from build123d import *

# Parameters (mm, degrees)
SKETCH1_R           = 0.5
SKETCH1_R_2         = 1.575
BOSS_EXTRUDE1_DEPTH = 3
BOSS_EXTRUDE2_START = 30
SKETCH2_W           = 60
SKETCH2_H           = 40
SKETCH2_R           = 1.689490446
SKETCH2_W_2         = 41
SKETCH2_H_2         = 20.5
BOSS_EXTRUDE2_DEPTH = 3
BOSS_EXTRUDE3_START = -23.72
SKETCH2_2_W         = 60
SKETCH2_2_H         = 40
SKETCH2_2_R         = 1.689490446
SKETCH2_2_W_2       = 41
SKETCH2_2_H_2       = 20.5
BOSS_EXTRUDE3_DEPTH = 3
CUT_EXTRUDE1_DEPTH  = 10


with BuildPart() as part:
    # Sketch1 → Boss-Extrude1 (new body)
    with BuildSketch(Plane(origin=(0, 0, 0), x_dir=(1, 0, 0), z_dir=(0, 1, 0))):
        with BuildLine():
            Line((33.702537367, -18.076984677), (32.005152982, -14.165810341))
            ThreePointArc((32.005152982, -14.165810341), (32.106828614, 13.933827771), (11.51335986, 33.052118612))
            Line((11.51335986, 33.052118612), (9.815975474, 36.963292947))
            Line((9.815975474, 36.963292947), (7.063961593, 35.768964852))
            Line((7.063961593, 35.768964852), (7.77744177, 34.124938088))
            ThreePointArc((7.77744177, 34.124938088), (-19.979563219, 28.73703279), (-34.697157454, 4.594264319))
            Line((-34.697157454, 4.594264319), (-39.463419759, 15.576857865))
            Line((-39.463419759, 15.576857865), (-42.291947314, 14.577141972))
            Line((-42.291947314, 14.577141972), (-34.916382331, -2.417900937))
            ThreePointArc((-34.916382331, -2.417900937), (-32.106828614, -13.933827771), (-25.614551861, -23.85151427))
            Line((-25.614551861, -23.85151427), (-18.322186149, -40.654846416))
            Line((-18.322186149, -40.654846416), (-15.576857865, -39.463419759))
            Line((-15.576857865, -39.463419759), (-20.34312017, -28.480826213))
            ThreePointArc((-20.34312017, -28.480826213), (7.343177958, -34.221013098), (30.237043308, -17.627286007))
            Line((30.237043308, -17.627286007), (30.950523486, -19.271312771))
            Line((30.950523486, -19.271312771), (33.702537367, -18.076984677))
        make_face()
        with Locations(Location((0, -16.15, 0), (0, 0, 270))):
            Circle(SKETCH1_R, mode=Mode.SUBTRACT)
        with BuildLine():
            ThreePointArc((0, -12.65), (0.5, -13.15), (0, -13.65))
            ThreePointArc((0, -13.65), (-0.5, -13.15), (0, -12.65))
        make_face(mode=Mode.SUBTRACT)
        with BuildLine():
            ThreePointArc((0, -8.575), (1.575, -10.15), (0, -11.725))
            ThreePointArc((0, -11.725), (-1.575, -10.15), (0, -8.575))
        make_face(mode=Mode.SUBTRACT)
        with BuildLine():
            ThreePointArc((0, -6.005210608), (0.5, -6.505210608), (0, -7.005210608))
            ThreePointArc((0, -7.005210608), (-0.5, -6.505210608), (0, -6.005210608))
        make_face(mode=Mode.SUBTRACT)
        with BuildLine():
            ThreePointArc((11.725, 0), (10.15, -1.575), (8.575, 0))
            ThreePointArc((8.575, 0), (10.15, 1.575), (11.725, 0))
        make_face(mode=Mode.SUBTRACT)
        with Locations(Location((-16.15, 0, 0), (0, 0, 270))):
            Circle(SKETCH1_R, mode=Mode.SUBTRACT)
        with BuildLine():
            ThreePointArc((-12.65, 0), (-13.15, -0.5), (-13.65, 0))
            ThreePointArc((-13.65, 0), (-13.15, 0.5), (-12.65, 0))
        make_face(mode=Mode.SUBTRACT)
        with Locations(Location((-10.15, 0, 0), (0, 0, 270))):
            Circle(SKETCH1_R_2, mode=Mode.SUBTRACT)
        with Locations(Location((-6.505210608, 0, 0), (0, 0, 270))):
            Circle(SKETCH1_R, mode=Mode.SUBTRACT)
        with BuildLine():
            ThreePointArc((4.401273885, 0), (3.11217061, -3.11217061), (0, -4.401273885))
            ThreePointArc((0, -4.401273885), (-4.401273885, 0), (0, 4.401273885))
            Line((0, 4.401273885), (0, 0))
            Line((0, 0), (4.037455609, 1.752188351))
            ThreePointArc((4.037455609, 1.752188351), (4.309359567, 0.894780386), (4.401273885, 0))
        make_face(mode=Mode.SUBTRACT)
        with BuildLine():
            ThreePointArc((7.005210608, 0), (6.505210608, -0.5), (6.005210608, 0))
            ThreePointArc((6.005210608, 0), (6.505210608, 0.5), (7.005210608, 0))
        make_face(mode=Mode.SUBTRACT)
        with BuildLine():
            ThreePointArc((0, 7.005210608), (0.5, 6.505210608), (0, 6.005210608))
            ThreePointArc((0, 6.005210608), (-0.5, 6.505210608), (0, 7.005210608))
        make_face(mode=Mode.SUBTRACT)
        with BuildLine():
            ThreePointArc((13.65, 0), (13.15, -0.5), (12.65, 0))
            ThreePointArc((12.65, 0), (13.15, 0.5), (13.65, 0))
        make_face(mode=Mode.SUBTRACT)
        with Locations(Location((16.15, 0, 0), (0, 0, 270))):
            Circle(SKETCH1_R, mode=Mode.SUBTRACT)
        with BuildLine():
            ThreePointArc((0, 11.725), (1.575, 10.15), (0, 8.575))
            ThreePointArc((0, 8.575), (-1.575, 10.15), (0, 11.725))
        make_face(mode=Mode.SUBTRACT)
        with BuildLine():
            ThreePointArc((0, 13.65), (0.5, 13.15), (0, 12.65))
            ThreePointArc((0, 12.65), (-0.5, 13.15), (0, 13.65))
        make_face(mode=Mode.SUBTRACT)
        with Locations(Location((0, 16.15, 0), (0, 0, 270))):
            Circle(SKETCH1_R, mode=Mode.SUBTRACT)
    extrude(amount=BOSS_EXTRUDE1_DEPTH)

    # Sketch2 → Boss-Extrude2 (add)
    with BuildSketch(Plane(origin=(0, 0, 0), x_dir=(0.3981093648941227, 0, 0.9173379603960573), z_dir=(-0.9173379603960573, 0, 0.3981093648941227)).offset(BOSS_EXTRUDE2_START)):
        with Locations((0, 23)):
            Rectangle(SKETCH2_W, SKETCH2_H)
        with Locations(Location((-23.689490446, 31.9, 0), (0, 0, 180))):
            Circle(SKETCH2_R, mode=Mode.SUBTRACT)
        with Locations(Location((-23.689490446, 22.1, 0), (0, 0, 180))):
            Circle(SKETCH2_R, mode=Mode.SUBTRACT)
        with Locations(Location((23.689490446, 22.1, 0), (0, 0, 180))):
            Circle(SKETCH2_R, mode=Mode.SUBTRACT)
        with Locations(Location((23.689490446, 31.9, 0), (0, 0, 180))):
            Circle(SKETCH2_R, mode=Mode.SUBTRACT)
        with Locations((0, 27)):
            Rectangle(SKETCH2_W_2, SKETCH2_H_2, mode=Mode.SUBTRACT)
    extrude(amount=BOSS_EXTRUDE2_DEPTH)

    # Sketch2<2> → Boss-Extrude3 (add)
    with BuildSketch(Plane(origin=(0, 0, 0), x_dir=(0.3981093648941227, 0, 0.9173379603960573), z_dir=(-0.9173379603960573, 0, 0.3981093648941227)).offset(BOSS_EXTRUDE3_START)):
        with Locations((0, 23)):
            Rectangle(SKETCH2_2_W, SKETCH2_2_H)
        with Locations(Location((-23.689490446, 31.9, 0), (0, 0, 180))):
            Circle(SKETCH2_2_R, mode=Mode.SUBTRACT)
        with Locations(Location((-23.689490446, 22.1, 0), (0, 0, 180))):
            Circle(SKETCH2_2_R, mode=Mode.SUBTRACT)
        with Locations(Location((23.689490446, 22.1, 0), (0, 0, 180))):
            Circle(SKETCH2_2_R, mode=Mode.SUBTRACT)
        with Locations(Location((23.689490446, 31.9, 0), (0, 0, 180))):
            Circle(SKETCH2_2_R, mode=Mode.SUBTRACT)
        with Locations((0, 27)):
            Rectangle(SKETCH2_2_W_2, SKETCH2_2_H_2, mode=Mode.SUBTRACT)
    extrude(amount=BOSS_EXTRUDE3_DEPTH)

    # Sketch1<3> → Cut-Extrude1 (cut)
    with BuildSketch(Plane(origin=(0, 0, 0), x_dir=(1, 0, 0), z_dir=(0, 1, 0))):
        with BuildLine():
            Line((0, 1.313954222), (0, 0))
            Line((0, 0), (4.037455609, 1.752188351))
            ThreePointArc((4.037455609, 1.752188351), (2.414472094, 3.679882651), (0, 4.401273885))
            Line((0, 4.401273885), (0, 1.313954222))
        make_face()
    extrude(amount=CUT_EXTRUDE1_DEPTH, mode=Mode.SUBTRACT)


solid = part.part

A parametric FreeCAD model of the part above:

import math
import FreeCAD as App
import Part
import Sketcher

V = App.Vector
Q = App.Units.Quantity


def add_polygon(sketch, points):
    """Adds a closed chain of lines whose ends are joined by coincident constraints."""
    first, n = sketch.GeometryCount, len(points)
    for a, b in zip(points, points[1:] + points[:1]):
        sketch.addGeometry(Part.LineSegment(App.Vector(*a, 0), App.Vector(*b, 0)), False)
    for i in range(n):
        sketch.addConstraint(Sketcher.Constraint("Coincident", first + i, 2, first + (i + 1) % n, 1))

doc = App.newDocument("Part")
body = doc.addObject("PartDesign::Body", "Body")

# Sketch on XZ plane
sketch1 = body.newObject("Sketcher::SketchObject", "Sketch")
sketch1.AttachmentSupport = (doc.getObject("XZ_Plane"), [""])
sketch1.MapMode = "FlatFace"
sketch1.addGeometry([
    Part.LineSegment(V(33.702537, 18.076985, 0), V(32.005153, 14.16581, 0)),  # 0
    Part.ArcOfCircle(Part.Circle(V(0, 0, 0), V(0, 0, 1), 35), math.radians(-70.794752), math.radians(23.874675)),  # 1
    Part.LineSegment(V(11.51336, -33.052119, 0), V(9.815975, -36.963293, 0)),  # 2
    Part.LineSegment(V(9.815975, -36.963293, 0), V(7.063962, -35.768965, 0)),  # 3
    Part.LineSegment(V(7.063962, -35.768965, 0), V(7.777442, -34.124938, 0)),  # 4
    Part.ArcOfCircle(Part.Circle(V(0, 0, 0), V(0, 0, 1), 35), math.radians(-172.45732), math.radians(-77.160976)),  # 5
    Part.LineSegment(V(-34.697157, -4.594264, 0), V(-39.46342, -15.576858, 0)),  # 6
    Part.LineSegment(V(-39.46342, -15.576858, 0), V(-42.291947, -14.577142, 0)),  # 7
    Part.LineSegment(V(-42.291947, -14.577142, 0), V(-34.916382, 2.417901, 0)),  # 8
    Part.ArcOfCircle(Part.Circle(V(0, 0, 0), V(0, 0, 1), 35), math.radians(137.041235), math.radians(176.038687)),  # 9
    Part.LineSegment(V(-25.614552, 23.851514, 0), V(-18.322186, 40.654846, 0)),  # 10
    Part.LineSegment(V(-18.322186, 40.654846, 0), V(-15.576858, 39.46342, 0)),  # 11
    Part.LineSegment(V(-15.576858, 39.46342, 0), V(-20.34312, 28.480826, 0)),  # 12
    Part.ArcOfCircle(Part.Circle(V(0, 0, 0), V(0, 0, 1), 35), math.radians(30.240898), math.radians(125.537242)),  # 13
    Part.LineSegment(V(30.237043, 17.627286, 0), V(30.950523, 19.271313, 0)),  # 14
    Part.LineSegment(V(30.950523, 19.271313, 0), V(33.702537, 18.076985, 0)),  # 15
    Part.Circle(V(0, 16.15, 0), V(0, 0, 1), 0.5),  # 16
    Part.Circle(V(0, 13.15, 0), V(0, 0, 1), 0.5),  # 17
    Part.Circle(V(0, 10.15, 0), V(0, 0, 1), 1.575),  # 18
    Part.Circle(V(0, 6.505211, 0), V(0, 0, 1), 0.5),  # 19
    Part.Circle(V(-16.15, 0, 0), V(0, 0, 1), 0.5),  # 20
    Part.Circle(V(-13.15, 0, 0), V(0, 0, 1), 0.5),  # 21
    Part.Circle(V(-10.15, 0, 0), V(0, 0, 1), 1.575),  # 22
    Part.Circle(V(-6.505211, 0, 0), V(0, 0, 1), 0.5),  # 23
    Part.ArcOfCircle(Part.Circle(V(0, 0, 0), V(0, 0, 1), 4.401274), math.radians(-23.460039), math.radians(0)),  # 24
    Part.ArcOfCircle(Part.Circle(V(0, 0, 0), V(0, 0, 1), 4.401274), math.radians(0), math.radians(90)),  # 25
    Part.ArcOfCircle(Part.Circle(V(0, 0, 0), V(0, 0, 1), 4.401274), math.radians(90), math.radians(270)),  # 26
    Part.LineSegment(V(0, -4.401274, 0), V(0, 0, 0)),  # 27
    Part.LineSegment(V(0, 0, 0), V(4.037456, -1.752188, 0)),  # 28
    Part.Circle(V(6.505211, 0, 0), V(0, 0, 1), 0.5),  # 29
    Part.Circle(V(0, -6.505211, 0), V(0, 0, 1), 0.5),  # 30
    Part.Circle(V(10.15, 0, 0), V(0, 0, 1), 1.575),  # 31
    Part.Circle(V(13.15, 0, 0), V(0, 0, 1), 0.5),  # 32
    Part.Circle(V(16.15, 0, 0), V(0, 0, 1), 0.5),  # 33
    Part.Circle(V(0, -10.15, 0), V(0, 0, 1), 1.575),  # 34
    Part.Circle(V(0, -13.15, 0), V(0, 0, 1), 0.5),  # 35
    Part.Circle(V(0, -16.15, 0), V(0, 0, 1), 0.5),  # 36
], False)
sketch1.addConstraint([
    Sketcher.Constraint("Coincident", 0, 2, 1, 2),
    Sketcher.Constraint("Coincident", 1, 1, 2, 1),
    Sketcher.Constraint("Coincident", 2, 2, 3, 1),
    Sketcher.Constraint("Coincident", 3, 2, 4, 1),
    Sketcher.Constraint("Coincident", 4, 2, 5, 2),
    Sketcher.Constraint("Coincident", 5, 1, 6, 1),
    Sketcher.Constraint("Coincident", 6, 2, 7, 1),
    Sketcher.Constraint("Coincident", 7, 2, 8, 1),
    Sketcher.Constraint("Coincident", 8, 2, 9, 2),
    Sketcher.Constraint("Coincident", 9, 1, 10, 1),
    Sketcher.Constraint("Coincident", 10, 2, 11, 1),
    Sketcher.Constraint("Coincident", 11, 2, 12, 1),
    Sketcher.Constraint("Coincident", 12, 2, 13, 2),
    Sketcher.Constraint("Coincident", 13, 1, 14, 1),
    Sketcher.Constraint("Coincident", 14, 2, 15, 1),
    Sketcher.Constraint("Coincident", 15, 2, 0, 1),
    Sketcher.Constraint("Tangent", 24, 2, 25, 1),
    Sketcher.Constraint("Tangent", 25, 2, 26, 1),
    Sketcher.Constraint("Coincident", 26, 2, 27, 1),
    Sketcher.Constraint("Coincident", 27, 2, 28, 1),
    Sketcher.Constraint("Coincident", 28, 2, 24, 1),
    Sketcher.Constraint("Vertical", 27),
    Sketcher.Constraint("Coincident", 1, 3, -1, 1),
    Sketcher.Constraint("Coincident", 5, 3, -1, 1),
    Sketcher.Constraint("Coincident", 9, 3, -1, 1),
    Sketcher.Constraint("Coincident", 13, 3, -1, 1),
    Sketcher.Constraint("Coincident", 24, 3, -1, 1),
    Sketcher.Constraint("Coincident", 26, 3, -1, 1),
    Sketcher.Constraint("Coincident", 27, 2, -1, 1),
    Sketcher.Constraint("Equal", 1, 5),
    Sketcher.Constraint("Equal", 5, 9),
    Sketcher.Constraint("Equal", 9, 13),
    Sketcher.Constraint("Equal", 16, 17),
    Sketcher.Constraint("Equal", 17, 19),
    Sketcher.Constraint("Equal", 19, 20),
    Sketcher.Constraint("Equal", 20, 21),
    Sketcher.Constraint("Equal", 18, 22),
    Sketcher.Constraint("Equal", 21, 23),
    Sketcher.Constraint("Equal", 23, 29),
    Sketcher.Constraint("Equal", 29, 30),
    Sketcher.Constraint("Equal", 22, 31),
    Sketcher.Constraint("Equal", 30, 32),
    Sketcher.Constraint("Equal", 32, 33),
    Sketcher.Constraint("Equal", 31, 34),
    Sketcher.Constraint("Equal", 33, 35),
    Sketcher.Constraint("Equal", 35, 36),
    Sketcher.Constraint("Symmetric", 23, 3, 29, 3, -1, 1),
    Sketcher.Constraint("Symmetric", 19, 3, 30, 3, -1, 1),
    Sketcher.Constraint("Symmetric", 22, 3, 31, 3, -1, 1),
    Sketcher.Constraint("Symmetric", 21, 3, 32, 3, -1, 1),
    Sketcher.Constraint("Symmetric", 20, 3, 33, 3, -1, 1),
    Sketcher.Constraint("Symmetric", 18, 3, 34, 3, -1, 1),
    Sketcher.Constraint("Symmetric", 17, 3, 35, 3, -1, 1),
    Sketcher.Constraint("Symmetric", 16, 3, 36, 3, -1, 1),
    Sketcher.Constraint("PointOnObject", 16, 3, -2),
    Sketcher.Constraint("PointOnObject", 17, 3, -2),
    Sketcher.Constraint("PointOnObject", 18, 3, -2),
    Sketcher.Constraint("PointOnObject", 19, 3, -2),
    Sketcher.Constraint("PointOnObject", 20, 3, -1),
    Sketcher.Constraint("PointOnObject", 21, 3, -1),
    Sketcher.Constraint("PointOnObject", 22, 3, -1),
    Sketcher.Constraint("PointOnObject", 23, 3, -1),
    Sketcher.Constraint("PointOnObject", 24, 2, -1),
    Sketcher.Constraint("PointOnObject", 25, 2, -2),
    Sketcher.Constraint("Parallel", 0, 2),
    Sketcher.Constraint("Perpendicular", 2, 3),
    Sketcher.Constraint("Perpendicular", 3, 4),
    Sketcher.Constraint("Parallel", 4, 6),
    Sketcher.Constraint("Parallel", 6, 8),
    Sketcher.Constraint("Parallel", 8, 10),
    Sketcher.Constraint("Perpendicular", 10, 11),
    Sketcher.Constraint("Perpendicular", 11, 12),
    Sketcher.Constraint("Parallel", 12, 14),
    Sketcher.Constraint("Perpendicular", 14, 15),
    Sketcher.Constraint("Parallel", 15, 28),
    Sketcher.Constraint("Equal", 0, 2),
    Sketcher.Constraint("Equal", 3, 7),
    Sketcher.Constraint("Equal", 6, 12),
    Sketcher.Constraint("Equal", 4, 14),
    Sketcher.Constraint("Equal", 7, 15),
    Sketcher.Constraint("Diameter", 16, Q("1 mm")),
    Sketcher.Constraint("Radius", 1, Q("35 mm")),
    Sketcher.Constraint("Diameter", 18, Q("3.15 mm")),
    Sketcher.Constraint("Distance", 3, Q("3 mm")),
    Sketcher.Constraint("DistanceY", 17, 3, 16, 3, Q("3 mm")),
    Sketcher.Constraint("DistanceY", 18, 3, 17, 3, Q("3 mm")),
    Sketcher.Constraint("DistanceX", 20, 3, 21, 3, Q("3 mm")),
    Sketcher.Constraint("DistanceX", 21, 3, 22, 3, Q("3 mm")),
    Sketcher.Constraint("DistanceY", -1, 1, 16, 3, Q("16.15 mm")),
    Sketcher.Constraint("DistanceX", 20, 3, -1, 1, Q("16.15 mm")),
    Sketcher.Constraint("Radius", 24, Q("4.401274 mm")),
    Sketcher.Constraint("DistanceY", -1, 1, 8, 2, Q("2.417901 mm")),
    Sketcher.Constraint("DistanceX", 3, 2, 1, 1, Q("4.449398 mm")),
    Sketcher.Constraint("DistanceY", 13, 1, 15, 2, Q("0.449699 mm")),
    Sketcher.Constraint("Distance", 4, Q("1.792171 mm")),
    Sketcher.Constraint("Distance", 8, Q("18.526479 mm")),
    Sketcher.Constraint("Distance", 11, Q("2.992712 mm")),
    Sketcher.Constraint("DistanceY", -1, 1, 19, 3, Q("6.505211 mm")),
    Sketcher.Constraint("DistanceX", 23, 3, -1, 1, Q("6.505211 mm")),
    Sketcher.Constraint("DistanceX", 6, 2, -1, 1, Q("39.46342 mm")),
    Sketcher.Constraint("DistanceX", 9, 1, -1, 1, Q("25.614552 mm")),
])
pad1 = body.newObject("PartDesign::Pad", "Pad")
pad1.Profile = sketch1
pad1.Length = 3
pad1.Reversed = True

# Sketch on an angled plane
sketch2 = body.newObject("Sketcher::SketchObject", "Sketch001")
sketch2.Placement = App.Placement(V(-27.520139, 0, 11.943281), App.Rotation(V(0.398109365, 0, 0.91733796), V(0, 0.999999999, 0), V(-0.91733796, 0, 0.398109365), "ZXY"))
add_polygon(sketch2, [(-30, 43), (-30, 3), (30, 3), (30, 43)])  # lines 0-3
sketch2.addGeometry(Part.Circle(V(-23.68949, 22.1, 0), V(0, 0, 1), 1.68949), False)  # 4
sketch2.addGeometry(Part.Circle(V(23.68949, 22.1, 0), V(0, 0, 1), 1.68949), False)  # 5
sketch2.addGeometry(Part.Circle(V(-23.68949, 31.9, 0), V(0, 0, 1), 1.68949), False)  # 6
add_polygon(sketch2, [(20.5, 16.75), (-20.5, 16.75), (-20.5, 37.25), (20.5, 37.25)])  # lines 7-10
sketch2.addGeometry(Part.Circle(V(23.68949, 31.9, 0), V(0, 0, 1), 1.68949), False)  # 11
sketch2.addConstraint([
    Sketcher.Constraint("Vertical", 0),
    Sketcher.Constraint("Horizontal", 1),
    Sketcher.Constraint("Vertical", 2),
    Sketcher.Constraint("Horizontal", 3),
    Sketcher.Constraint("Horizontal", 7),
    Sketcher.Constraint("Vertical", 8),
    Sketcher.Constraint("Horizontal", 9),
    Sketcher.Constraint("Vertical", 10),
    Sketcher.Constraint("Equal", 4, 5),
    Sketcher.Constraint("Equal", 5, 6),
    Sketcher.Constraint("Equal", 6, 11),
    Sketcher.Constraint("Symmetric", 4, 3, 5, 3, -2),
    Sketcher.Constraint("Symmetric", 6, 3, 11, 3, -2),
    Sketcher.Constraint("Vertical", 4, 3, 6, 3),
    Sketcher.Constraint("DistanceX", 1, 1, 1, 2, Q("60 mm")),
    Sketcher.Constraint("DistanceX", 7, 2, 7, 1, Q("41 mm")),
    Sketcher.Constraint("DistanceY", 0, 2, 0, 1, Q("40 mm")),
    Sketcher.Constraint("DistanceY", 8, 1, 8, 2, Q("20.5 mm")),
    Sketcher.Constraint("DistanceX", 0, 2, -1, 1, Q("30 mm")),
    Sketcher.Constraint("DistanceY", -1, 1, 0, 2, Q("3 mm")),
    Sketcher.Constraint("DistanceY", -1, 1, 4, 3, Q("22.1 mm")),
    Sketcher.Constraint("DistanceY", -1, 1, 6, 3, Q("31.9 mm")),
    Sketcher.Constraint("DistanceX", 7, 2, -1, 1, Q("20.5 mm")),
    Sketcher.Constraint("Diameter", 4, Q("3.378981 mm")),
    Sketcher.Constraint("DistanceY", -1, 1, 7, 2, Q("16.75 mm")),
    Sketcher.Constraint("DistanceX", 4, 3, -1, 1, Q("23.68949 mm")),
])
pad2 = body.newObject("PartDesign::Pad", "Pad001")
pad2.Profile = sketch2
pad2.Length = 3

# Sketch on an angled plane
sketch3 = body.newObject("Sketcher::SketchObject", "Sketch002")
sketch3.Placement = App.Placement(V(21.759256, 0, -9.443154), App.Rotation(V(0.398109365, 0, 0.91733796), V(0, 0.999999999, 0), V(-0.91733796, 0, 0.398109365), "ZXY"))
add_polygon(sketch3, [(-30, 43), (-30, 3), (30, 3), (30, 43)])  # lines 0-3
sketch3.addGeometry(Part.Circle(V(-23.68949, 22.1, 0), V(0, 0, 1), 1.68949), False)  # 4
sketch3.addGeometry(Part.Circle(V(23.68949, 22.1, 0), V(0, 0, 1), 1.68949), False)  # 5
sketch3.addGeometry(Part.Circle(V(-23.68949, 31.9, 0), V(0, 0, 1), 1.68949), False)  # 6
add_polygon(sketch3, [(20.5, 16.75), (-20.5, 16.75), (-20.5, 37.25), (20.5, 37.25)])  # lines 7-10
sketch3.addGeometry(Part.Circle(V(23.68949, 31.9, 0), V(0, 0, 1), 1.68949), False)  # 11
sketch3.addConstraint([
    Sketcher.Constraint("Vertical", 0),
    Sketcher.Constraint("Horizontal", 1),
    Sketcher.Constraint("Vertical", 2),
    Sketcher.Constraint("Horizontal", 3),
    Sketcher.Constraint("Horizontal", 7),
    Sketcher.Constraint("Vertical", 8),
    Sketcher.Constraint("Horizontal", 9),
    Sketcher.Constraint("Vertical", 10),
    Sketcher.Constraint("Equal", 4, 5),
    Sketcher.Constraint("Equal", 5, 6),
    Sketcher.Constraint("Equal", 6, 11),
    Sketcher.Constraint("Symmetric", 4, 3, 5, 3, -2),
    Sketcher.Constraint("Symmetric", 6, 3, 11, 3, -2),
    Sketcher.Constraint("Vertical", 4, 3, 6, 3),
    Sketcher.Constraint("DistanceX", 1, 1, 1, 2, Q("60 mm")),
    Sketcher.Constraint("DistanceX", 7, 2, 7, 1, Q("41 mm")),
    Sketcher.Constraint("DistanceY", 0, 2, 0, 1, Q("40 mm")),
    Sketcher.Constraint("DistanceY", 8, 1, 8, 2, Q("20.5 mm")),
    Sketcher.Constraint("DistanceX", 0, 2, -1, 1, Q("30 mm")),
    Sketcher.Constraint("DistanceY", -1, 1, 0, 2, Q("3 mm")),
    Sketcher.Constraint("DistanceY", -1, 1, 4, 3, Q("22.1 mm")),
    Sketcher.Constraint("DistanceY", -1, 1, 6, 3, Q("31.9 mm")),
    Sketcher.Constraint("DistanceX", 7, 2, -1, 1, Q("20.5 mm")),
    Sketcher.Constraint("Diameter", 4, Q("3.378981 mm")),
    Sketcher.Constraint("DistanceY", -1, 1, 7, 2, Q("16.75 mm")),
    Sketcher.Constraint("DistanceX", 4, 3, -1, 1, Q("23.68949 mm")),
])
pad3 = body.newObject("PartDesign::Pad", "Pad002")
pad3.Profile = sketch3
pad3.Length = 3

# Sketch on XZ plane
sketch4 = body.newObject("Sketcher::SketchObject", "Sketch003")
sketch4.AttachmentSupport = (doc.getObject("XZ_Plane"), [""])
sketch4.MapMode = "FlatFace"
sketch4.addGeometry([
    Part.LineSegment(V(0, 0, 0), V(4.037456, -1.752188, 0)),
    Part.ArcOfCircle(Part.Circle(V(0, 0, 0), V(0, 0, 1), 4.401274), math.radians(-90), math.radians(-23.460039)),
    Part.LineSegment(V(0, -4.401274, 0), V(0, 0, 0)),
], False)
sketch4.addConstraint([
    Sketcher.Constraint("Coincident", 0, 2, 1, 2),
    Sketcher.Constraint("Coincident", 1, 1, 2, 1),
    Sketcher.Constraint("Coincident", 2, 2, 0, 1),
    Sketcher.Constraint("Vertical", 2),
    Sketcher.Constraint("Coincident", 1, 3, -1, 1),
    Sketcher.Constraint("Coincident", 2, 2, -1, 1),
    Sketcher.Constraint("Radius", 1, Q("4.401274 mm")),
    Sketcher.Constraint("DistanceY", 0, 2, -1, 1, Q("1.752188 mm")),
])
pocket1 = body.newObject("PartDesign::Pocket", "Pocket")
pocket1.Profile = sketch4
pocket1.Length = 10

doc.recompute()
